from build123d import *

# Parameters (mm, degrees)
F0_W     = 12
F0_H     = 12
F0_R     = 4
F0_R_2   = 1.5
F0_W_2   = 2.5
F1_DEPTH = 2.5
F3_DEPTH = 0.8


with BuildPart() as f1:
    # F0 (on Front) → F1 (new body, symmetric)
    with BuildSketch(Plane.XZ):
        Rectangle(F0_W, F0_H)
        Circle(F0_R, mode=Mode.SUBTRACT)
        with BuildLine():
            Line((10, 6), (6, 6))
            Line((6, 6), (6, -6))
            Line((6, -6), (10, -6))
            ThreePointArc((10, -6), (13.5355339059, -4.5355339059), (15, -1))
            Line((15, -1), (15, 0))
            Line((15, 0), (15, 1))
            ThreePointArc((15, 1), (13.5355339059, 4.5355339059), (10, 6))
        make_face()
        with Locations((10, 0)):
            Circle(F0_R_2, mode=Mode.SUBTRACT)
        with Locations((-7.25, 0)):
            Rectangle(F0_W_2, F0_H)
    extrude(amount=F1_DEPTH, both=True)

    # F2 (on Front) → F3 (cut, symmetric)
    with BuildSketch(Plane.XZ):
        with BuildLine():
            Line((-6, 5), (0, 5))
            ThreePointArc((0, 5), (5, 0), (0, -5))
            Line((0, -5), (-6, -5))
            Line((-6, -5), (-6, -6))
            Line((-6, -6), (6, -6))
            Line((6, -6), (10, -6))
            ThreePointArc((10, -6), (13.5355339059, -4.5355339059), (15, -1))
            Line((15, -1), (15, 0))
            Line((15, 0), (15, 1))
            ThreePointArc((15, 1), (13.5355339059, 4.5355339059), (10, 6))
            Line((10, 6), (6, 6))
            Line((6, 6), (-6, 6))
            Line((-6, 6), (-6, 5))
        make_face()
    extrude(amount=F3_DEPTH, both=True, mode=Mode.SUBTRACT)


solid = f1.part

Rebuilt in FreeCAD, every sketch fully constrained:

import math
import FreeCAD as App
import Part
import Sketcher
from FreeCAD import Vector

doc = App.newDocument("Part")
body = doc.addObject("PartDesign::Body", "Body")

# Sketch on XZ plane
sketch1 = doc.addObject("Sketcher::SketchObject", "Sketch")
body.addObject(sketch1)
sketch1.AttachmentSupport = (doc.XZ_Plane, [""])
sketch1.MapMode = "FlatFace"
sketch1.addGeometry([
    Part.ArcOfCircle(Part.Circle(Vector(10, -1, 0), Vector(0, 0, 1), 5), math.radians(-90), math.radians(0)),  # 0
    Part.LineSegment(Vector(15, -1, 0), Vector(15, 1, 0)),  # 1
    Part.ArcOfCircle(Part.Circle(Vector(10, 1, 0), Vector(0, 0, 1), 5), math.radians(0), math.radians(90)),  # 2
    Part.LineSegment(Vector(10, 6, 0), Vector(-8.5, 6, 0)),  # 3
    Part.LineSegment(Vector(-8.5, 6, 0), Vector(-8.5, -6, 0)),  # 4
    Part.LineSegment(Vector(-8.5, -6, 0), Vector(10, -6, 0)),  # 5
    Part.Circle(Vector(0, 0, 0), Vector(0, 0, 1), 4),  # 6
    Part.Circle(Vector(10, 0, 0), Vector(0, 0, 1), 1.5),  # 7
], False)
sketch1.addConstraint([
    Sketcher.Constraint("Tangent", 0, 2, 1, 1),
    Sketcher.Constraint("Tangent", 1, 2, 2, 1),
    Sketcher.Constraint("Tangent", 2, 2, 3, 1),
    Sketcher.Constraint("Coincident", 3, 2, 4, 1),
    Sketcher.Constraint("Coincident", 4, 2, 5, 1),
    Sketcher.Constraint("Tangent", 5, 2, 0, 1),
    Sketcher.Constraint("Vertical", 1),
    Sketcher.Constraint("Horizontal", 3),
    Sketcher.Constraint("Vertical", 4),
    Sketcher.Constraint("Horizontal", 5),
    Sketcher.Constraint("Coincident", 6, 3, -1, 1),
    Sketcher.Constraint("Equal", 0, 2),
    Sketcher.Constraint("PointOnObject", 7, 3, -1),
    Sketcher.Constraint("Vertical", 2, 3, 7, 3),
    Sketcher.Constraint("Diameter", 6, 8.0),
    Sketcher.Constraint("Diameter", 7, 3.0),
    Sketcher.Constraint("Radius", 0, 5.0),
    Sketcher.Constraint("DistanceY", 1, 1, 1, 2, 2.0),
    Sketcher.Constraint("DistanceX", 3, 2, 3, 1, 18.5),
    Sketcher.Constraint("DistanceX", -1, 1, 0, 3, 10.0),
    Sketcher.Constraint("DistanceY", 0, 3, -1, 1, 1.0),
])
pad1 = doc.addObject("PartDesign::Pad", "Pad")
body.addObject(pad1)
pad1.Profile = sketch1
pad1.Length = 5
pad1.Midplane = True

# Sketch on XZ plane
sketch2 = doc.addObject("Sketcher::SketchObject", "Sketch001")
body.addObject(sketch2)
sketch2.AttachmentSupport = (doc.XZ_Plane, [""])
sketch2.MapMode = "FlatFace"
sketch2.addGeometry([
    Part.LineSegment(Vector(-6, 5, 0), Vector(0, 5, 0)),  # 0
    Part.ArcOfCircle(Part.Circle(Vector(0, 0, 0), Vector(0, 0, 1), 5), math.radians(-90), math.radians(90)),  # 1
    Part.LineSegment(Vector(0, -5, 0), Vector(-6, -5, 0)),  # 2
    Part.LineSegment(Vector(-6, -5, 0), Vector(-6, -6, 0)),  # 3
    Part.LineSegment(Vector(-6, -6, 0), Vector(10, -6, 0)),  # 4
    Part.ArcOfCircle(Part.Circle(Vector(10, -1, 0), Vector(0, 0, 1), 5), math.radians(-90), math.radians(0)),  # 5
    Part.LineSegment(Vector(15, -1, 0), Vector(15, 1, 0)),  # 6
    Part.ArcOfCircle(Part.Circle(Vector(10, 1, 0), Vector(0, 0, 1), 5), math.radians(0), math.radians(90)),  # 7
    Part.LineSegment(Vector(10, 6, 0), Vector(-6, 6, 0)),  # 8
    Part.LineSegment(Vector(-6, 6, 0), Vector(-6, 5, 0)),  # 9
], False)
sketch2.addConstraint([
    Sketcher.Constraint("Tangent", 0, 2, 1, 2),
    Sketcher.Constraint("Tangent", 1, 1, 2, 1),
    Sketcher.Constraint("Coincident", 2, 2, 3, 1),
    Sketcher.Constraint("Coincident", 3, 2, 4, 1),
    Sketcher.Constraint("Tangent", 4, 2, 5, 1),
    Sketcher.Constraint("Tangent", 5, 2, 6, 1),
    Sketcher.Constraint("Tangent", 6, 2, 7, 1),
    Sketcher.Constraint("Tangent", 7, 2, 8, 1),
    Sketcher.Constraint("Coincident", 8, 2, 9, 1),
    Sketcher.Constraint("Coincident", 9, 2, 0, 1),
    Sketcher.Constraint("Horizontal", 0),
    Sketcher.Constraint("Horizontal", 2),
    Sketcher.Constraint("Vertical", 3),
    Sketcher.Constraint("Horizontal", 4),
    Sketcher.Constraint("Vertical", 6),
    Sketcher.Constraint("Horizontal", 8),
    Sketcher.Constraint("Vertical", 9),
    Sketcher.Constraint("Coincident", 1, 3, -1, 1),
    Sketcher.Constraint("Equal", 1, 5),
    Sketcher.Constraint("Equal", 5, 7),
    Sketcher.Constraint("Symmetric", 3, 2, 8, 2, -1),
    Sketcher.Constraint("Radius", 1, 5.0),
    Sketcher.Constraint("DistanceX", 0, 1, 0, 2, 6.0),
    Sketcher.Constraint("DistanceX", 4, 1, 4, 2, 16.0),
    Sketcher.Constraint("DistanceY", 3, 2, 3, 1, 1.0),
])
pocket1 = doc.addObject("PartDesign::Pocket", "Pocket")
body.addObject(pocket1)
pocket1.Profile = sketch2
pocket1.Length = 1.6
pocket1.Midplane = True

doc.recompute()
